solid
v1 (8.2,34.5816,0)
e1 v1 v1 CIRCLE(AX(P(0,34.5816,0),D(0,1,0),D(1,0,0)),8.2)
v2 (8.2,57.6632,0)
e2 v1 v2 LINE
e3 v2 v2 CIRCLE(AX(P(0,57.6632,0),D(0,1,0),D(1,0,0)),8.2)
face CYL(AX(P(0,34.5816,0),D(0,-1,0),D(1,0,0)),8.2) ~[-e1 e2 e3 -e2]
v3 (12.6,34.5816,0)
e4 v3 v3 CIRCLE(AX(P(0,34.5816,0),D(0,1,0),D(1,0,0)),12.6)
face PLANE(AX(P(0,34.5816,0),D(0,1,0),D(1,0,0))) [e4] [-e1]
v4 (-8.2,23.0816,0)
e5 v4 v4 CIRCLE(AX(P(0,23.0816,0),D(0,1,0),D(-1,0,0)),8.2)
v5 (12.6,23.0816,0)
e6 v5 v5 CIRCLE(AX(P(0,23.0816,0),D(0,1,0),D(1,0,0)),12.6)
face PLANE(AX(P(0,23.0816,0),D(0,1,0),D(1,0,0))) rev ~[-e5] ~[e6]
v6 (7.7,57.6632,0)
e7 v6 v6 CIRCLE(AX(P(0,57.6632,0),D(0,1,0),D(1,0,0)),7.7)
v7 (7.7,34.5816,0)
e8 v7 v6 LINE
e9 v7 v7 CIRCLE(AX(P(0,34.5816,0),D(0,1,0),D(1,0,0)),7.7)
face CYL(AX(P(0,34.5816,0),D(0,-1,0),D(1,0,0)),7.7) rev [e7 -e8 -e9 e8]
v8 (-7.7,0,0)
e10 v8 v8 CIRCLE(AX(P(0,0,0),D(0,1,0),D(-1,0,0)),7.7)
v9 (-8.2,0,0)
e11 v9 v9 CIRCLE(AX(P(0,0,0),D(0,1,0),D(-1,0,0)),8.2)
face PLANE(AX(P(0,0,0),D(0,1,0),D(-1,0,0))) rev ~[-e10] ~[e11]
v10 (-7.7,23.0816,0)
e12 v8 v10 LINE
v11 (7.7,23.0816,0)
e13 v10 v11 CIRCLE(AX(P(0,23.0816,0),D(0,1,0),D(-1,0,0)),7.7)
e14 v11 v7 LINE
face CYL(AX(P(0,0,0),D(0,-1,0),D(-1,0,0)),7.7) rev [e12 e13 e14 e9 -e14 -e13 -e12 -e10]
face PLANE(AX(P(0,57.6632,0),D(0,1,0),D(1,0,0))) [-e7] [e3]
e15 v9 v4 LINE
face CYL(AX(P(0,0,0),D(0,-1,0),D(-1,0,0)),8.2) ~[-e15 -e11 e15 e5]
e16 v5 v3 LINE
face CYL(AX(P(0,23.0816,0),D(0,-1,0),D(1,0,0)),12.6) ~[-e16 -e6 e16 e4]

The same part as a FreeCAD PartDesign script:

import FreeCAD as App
import Part
import Sketcher

V = App.Vector

doc = App.newDocument("Part")
body = doc.addObject("PartDesign::Body", "Body")

# Sketch on XZ plane
sketch1 = doc.addObject("Sketcher::SketchObject", "Sketch")
body.addObject(sketch1)
sketch1.AttachmentSupport = (doc.XZ_Plane, [""])
sketch1.MapMode = "FlatFace"
sketch1.addGeometry([
    Part.Circle(V(0, 0, 0), V(0, 0, 1), 8),
    Part.Circle(V(0, 0, 0), V(0, 0, 1), 8),
], False)
sketch1.addConstraint([
    Sketcher.Constraint("Coincident", 0, 3, -1, 1),
    Sketcher.Constraint("Coincident", 1, 3, -1, 1),
    Sketcher.Constraint("Diameter", 0, 16.4),
    Sketcher.Constraint("Diameter", 1, 15.4),
])
pad1 = doc.addObject("PartDesign::Pad", "Pad")
body.addObject(pad1)
pad1.Profile = sketch1
pad1.Length = 23.0816
pad1.Reversed = True

# Sketch on XZ plane
sketch2 = doc.addObject("Sketcher::SketchObject", "Sketch001")
body.addObject(sketch2)
sketch2.AttachmentSupport = (doc.XZ_Plane, [""])
sketch2.MapMode = "FlatFace"
sketch2.AttachmentOffset = App.Placement(V(0, 0, -23.0816), App.Rotation())
sketch2.addGeometry([
    Part.Circle(V(0, 0, 0), V(0, 0, 1), 13),
    Part.Circle(V(0, 0, 0), V(0, 0, 1), 8),
], False)
sketch2.addConstraint([
    Sketcher.Constraint("Coincident", 0, 3, -1, 1),
    Sketcher.Constraint("Coincident", 1, 3, -1, 1),
    Sketcher.Constraint("Diameter", 0, 25.2),
    Sketcher.Constraint("Diameter", 1, 15.4),
])
pad2 = doc.addObject("PartDesign::Pad", "Pad001")
body.addObject(pad2)
pad2.Profile = sketch2
pad2.Length = 11.5
pad2.Reversed = True

# Sketch on XZ plane
sketch3 = doc.addObject("Sketcher::SketchObject", "Sketch002")
body.addObject(sketch3)
sketch3.AttachmentSupport = (doc.XZ_Plane, [""])
sketch3.MapMode = "FlatFace"
sketch3.AttachmentOffset = App.Placement(V(0, 0, -34.5816), App.Rotation())
sketch3.addGeometry([
    Part.Circle(V(0, 0, 0), V(0, 0, 1), 8),
    Part.Circle(V(0, 0, 0), V(0, 0, 1), 8),
], False)
sketch3.addConstraint([
    Sketcher.Constraint("Coincident", 0, 3, -1, 1),
    Sketcher.Constraint("Coincident", 1, 3, -1, 1),
    Sketcher.Constraint("Diameter", 0, 16.4),
    Sketcher.Constraint("Diameter", 1, 15.4),
])
pad3 = doc.addObject("PartDesign::Pad", "Pad002")
body.addObject(pad3)
pad3.Profile = sketch3
pad3.Length = 23.0816
pad3.Reversed = True

doc.recompute()
